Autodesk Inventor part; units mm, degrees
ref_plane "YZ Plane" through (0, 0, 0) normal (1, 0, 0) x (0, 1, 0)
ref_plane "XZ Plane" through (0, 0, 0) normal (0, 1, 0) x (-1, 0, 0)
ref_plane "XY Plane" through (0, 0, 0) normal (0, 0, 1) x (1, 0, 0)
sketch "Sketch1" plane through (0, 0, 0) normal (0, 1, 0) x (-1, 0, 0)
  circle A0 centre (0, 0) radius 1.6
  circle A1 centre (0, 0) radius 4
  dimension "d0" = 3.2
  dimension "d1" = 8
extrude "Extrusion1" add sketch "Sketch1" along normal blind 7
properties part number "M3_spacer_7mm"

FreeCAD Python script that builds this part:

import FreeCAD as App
import Part
import Sketcher
from FreeCAD import Vector

doc = App.newDocument("Part")
params = doc.addObject("Spreadsheet::Sheet", "Params")
for row, (alias, value) in enumerate([
    ("sketch1_diameter", "8 mm"),
    ("sketch1_diameter2", "3.2 mm"),
    ("pad1_length", "7 mm"),
], start=1):
    params.set(f"A{row}", alias)
    params.set(f"B{row}", "=" + value)
    params.setAlias(f"B{row}", alias)

body = doc.addObject("PartDesign::Body", "Body")

# Sketch on XZ plane
sketch1 = doc.addObject("Sketcher::SketchObject", "Sketch")
body.addObject(sketch1)
sketch1.AttachmentSupport = (doc.XZ_Plane, [""])
sketch1.MapMode = "FlatFace"
sketch1.addGeometry(Part.Circle(Vector(0, 0, 0), Vector(0, 0, 1), 4), False)
sketch1.addGeometry(Part.Circle(Vector(0, 0, 0), Vector(0, 0, 1), 1.6), False)
sketch1.addConstraint(Sketcher.Constraint("Coincident", 0, 3, -1, 1))
sketch1.addConstraint(Sketcher.Constraint("Coincident", 1, 3, -1, 1))
sketch1.addConstraint(Sketcher.Constraint("Diameter", 0, 8.0))
sketch1.addConstraint(Sketcher.Constraint("Diameter", 1, 3.2))
sketch1.setExpression("Constraints[2]", "Params.sketch1_diameter")
sketch1.setExpression("Constraints[3]", "Params.sketch1_diameter2")
pad1 = doc.addObject("PartDesign::Pad", "Pad")
body.addObject(pad1)
pad1.Profile = sketch1
pad1.setExpression("Length", "Params.pad1_length")
pad1.Reversed = True

doc.recompute()
